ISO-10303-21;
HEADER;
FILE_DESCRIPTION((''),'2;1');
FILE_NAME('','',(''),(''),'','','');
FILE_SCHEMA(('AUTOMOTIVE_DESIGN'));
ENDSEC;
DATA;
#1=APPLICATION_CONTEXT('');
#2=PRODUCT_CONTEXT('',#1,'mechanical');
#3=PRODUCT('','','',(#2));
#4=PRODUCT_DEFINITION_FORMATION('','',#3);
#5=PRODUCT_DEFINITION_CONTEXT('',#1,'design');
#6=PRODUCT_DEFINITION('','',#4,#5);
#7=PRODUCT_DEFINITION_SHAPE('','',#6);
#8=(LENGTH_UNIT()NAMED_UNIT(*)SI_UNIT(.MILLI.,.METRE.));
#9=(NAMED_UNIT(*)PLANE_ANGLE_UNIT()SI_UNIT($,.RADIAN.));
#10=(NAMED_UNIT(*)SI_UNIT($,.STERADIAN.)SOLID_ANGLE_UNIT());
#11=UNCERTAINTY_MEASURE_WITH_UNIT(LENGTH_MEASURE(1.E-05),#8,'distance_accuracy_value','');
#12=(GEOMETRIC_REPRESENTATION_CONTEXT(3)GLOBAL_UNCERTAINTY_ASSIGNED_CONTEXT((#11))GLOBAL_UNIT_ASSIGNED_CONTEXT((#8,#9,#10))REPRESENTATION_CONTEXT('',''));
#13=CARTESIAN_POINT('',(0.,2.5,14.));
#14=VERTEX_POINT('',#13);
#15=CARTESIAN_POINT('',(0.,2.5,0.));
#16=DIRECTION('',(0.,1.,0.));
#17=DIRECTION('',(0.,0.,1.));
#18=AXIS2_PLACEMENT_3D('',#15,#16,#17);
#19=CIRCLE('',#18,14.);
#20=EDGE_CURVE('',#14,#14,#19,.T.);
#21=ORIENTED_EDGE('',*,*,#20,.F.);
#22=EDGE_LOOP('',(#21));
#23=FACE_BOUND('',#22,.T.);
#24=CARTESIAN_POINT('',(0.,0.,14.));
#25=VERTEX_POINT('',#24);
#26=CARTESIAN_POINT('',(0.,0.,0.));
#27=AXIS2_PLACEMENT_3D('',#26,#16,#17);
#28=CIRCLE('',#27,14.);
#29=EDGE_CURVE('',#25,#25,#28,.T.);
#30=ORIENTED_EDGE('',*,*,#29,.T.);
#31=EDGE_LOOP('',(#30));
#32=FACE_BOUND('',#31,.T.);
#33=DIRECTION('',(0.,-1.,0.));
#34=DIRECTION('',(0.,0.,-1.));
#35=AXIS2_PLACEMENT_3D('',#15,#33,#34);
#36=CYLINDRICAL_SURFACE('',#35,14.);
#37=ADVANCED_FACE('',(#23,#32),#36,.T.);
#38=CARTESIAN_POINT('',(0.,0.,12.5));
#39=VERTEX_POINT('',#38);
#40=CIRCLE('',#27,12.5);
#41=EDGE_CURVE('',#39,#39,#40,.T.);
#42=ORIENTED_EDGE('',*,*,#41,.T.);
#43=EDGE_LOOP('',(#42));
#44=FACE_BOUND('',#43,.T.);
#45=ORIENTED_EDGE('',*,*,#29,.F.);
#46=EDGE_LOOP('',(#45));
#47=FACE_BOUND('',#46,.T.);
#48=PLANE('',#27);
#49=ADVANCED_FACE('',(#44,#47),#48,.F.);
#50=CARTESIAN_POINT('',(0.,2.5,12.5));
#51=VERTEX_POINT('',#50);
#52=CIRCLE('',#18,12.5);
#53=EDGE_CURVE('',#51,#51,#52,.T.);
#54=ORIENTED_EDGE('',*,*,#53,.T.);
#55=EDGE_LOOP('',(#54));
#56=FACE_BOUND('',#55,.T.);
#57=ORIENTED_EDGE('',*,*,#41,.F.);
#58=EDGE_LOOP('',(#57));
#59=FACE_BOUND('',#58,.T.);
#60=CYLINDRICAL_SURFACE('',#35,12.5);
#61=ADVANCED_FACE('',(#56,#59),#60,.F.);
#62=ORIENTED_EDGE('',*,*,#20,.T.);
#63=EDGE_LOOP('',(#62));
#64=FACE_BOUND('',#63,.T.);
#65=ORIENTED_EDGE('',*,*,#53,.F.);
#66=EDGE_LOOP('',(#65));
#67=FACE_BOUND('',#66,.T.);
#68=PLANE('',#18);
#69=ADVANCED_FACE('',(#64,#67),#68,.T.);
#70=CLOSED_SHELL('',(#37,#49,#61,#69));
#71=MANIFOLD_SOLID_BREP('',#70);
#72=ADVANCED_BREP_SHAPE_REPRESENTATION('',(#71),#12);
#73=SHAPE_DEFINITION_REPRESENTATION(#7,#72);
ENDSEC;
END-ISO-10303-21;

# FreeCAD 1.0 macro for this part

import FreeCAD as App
import Part
import Sketcher
from FreeCAD import Vector

doc = App.newDocument("Part")
body = doc.addObject("PartDesign::Body", "Body")

sketch1 = body.newObject("Sketcher::SketchObject", "Sketch")
sketch1.AttachmentSupport = (doc.getObject("XZ_Plane"), [""])
sketch1.MapMode = "FlatFace"
sketch1.addGeometry([
    Part.Circle(Vector(0, 0, 0), Vector(0, 0, 1), 14),
    Part.Circle(Vector(0, 0, 0), Vector(0, 0, 1), 12),
], False)
sketch1.addConstraint([
    Sketcher.Constraint("Coincident", 0, 3, -1, 1),
    Sketcher.Constraint("Coincident", 1, 3, -1, 1),
    Sketcher.Constraint("Diameter", 0, 28.0),
    Sketcher.Constraint("Diameter", 1, 25.0),
])
pad1 = body.newObject("PartDesign::Pad", "Pad")
pad1.Profile = sketch1
pad1.Length = 2.5
pad1.Reversed = True

doc.recompute()
